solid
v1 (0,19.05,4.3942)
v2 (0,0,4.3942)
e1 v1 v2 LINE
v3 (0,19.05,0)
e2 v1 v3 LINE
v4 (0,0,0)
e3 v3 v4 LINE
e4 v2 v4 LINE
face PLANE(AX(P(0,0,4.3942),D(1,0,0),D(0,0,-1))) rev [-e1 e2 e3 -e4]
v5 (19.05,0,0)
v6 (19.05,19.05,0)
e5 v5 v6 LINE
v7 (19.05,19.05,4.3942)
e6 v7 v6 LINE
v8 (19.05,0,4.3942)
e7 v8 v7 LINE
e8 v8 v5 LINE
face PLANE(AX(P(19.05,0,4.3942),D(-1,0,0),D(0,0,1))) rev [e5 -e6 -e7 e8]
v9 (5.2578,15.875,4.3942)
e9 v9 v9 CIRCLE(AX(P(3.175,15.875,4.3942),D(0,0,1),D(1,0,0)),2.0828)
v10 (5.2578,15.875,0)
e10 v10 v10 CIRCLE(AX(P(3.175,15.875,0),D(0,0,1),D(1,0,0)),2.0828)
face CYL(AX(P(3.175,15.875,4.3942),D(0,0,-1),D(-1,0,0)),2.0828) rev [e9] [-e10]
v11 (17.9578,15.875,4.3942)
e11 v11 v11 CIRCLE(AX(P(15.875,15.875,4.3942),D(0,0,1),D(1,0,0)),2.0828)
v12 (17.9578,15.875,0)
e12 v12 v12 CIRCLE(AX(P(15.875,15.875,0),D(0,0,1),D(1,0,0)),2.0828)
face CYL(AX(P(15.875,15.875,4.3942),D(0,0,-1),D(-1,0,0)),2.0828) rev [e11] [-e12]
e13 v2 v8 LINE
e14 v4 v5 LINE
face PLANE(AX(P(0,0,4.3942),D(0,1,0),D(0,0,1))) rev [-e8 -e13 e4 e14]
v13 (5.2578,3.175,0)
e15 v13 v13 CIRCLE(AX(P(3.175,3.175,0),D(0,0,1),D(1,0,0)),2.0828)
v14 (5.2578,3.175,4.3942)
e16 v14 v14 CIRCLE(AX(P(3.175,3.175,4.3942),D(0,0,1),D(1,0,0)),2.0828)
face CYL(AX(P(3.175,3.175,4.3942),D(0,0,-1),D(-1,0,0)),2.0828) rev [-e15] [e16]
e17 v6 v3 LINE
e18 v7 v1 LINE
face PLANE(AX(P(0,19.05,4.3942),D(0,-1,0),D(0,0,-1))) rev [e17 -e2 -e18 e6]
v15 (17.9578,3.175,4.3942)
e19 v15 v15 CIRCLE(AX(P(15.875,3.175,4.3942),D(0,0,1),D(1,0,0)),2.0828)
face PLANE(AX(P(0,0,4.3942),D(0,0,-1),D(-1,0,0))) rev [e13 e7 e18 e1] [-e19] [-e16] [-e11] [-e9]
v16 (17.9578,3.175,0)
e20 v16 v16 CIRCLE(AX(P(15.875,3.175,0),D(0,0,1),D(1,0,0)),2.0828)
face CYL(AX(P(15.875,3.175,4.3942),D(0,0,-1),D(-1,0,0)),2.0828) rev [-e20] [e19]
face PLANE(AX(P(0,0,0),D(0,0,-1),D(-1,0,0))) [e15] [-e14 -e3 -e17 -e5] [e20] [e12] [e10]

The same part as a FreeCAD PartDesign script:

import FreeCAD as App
import Part
import Sketcher
from FreeCAD import Vector
Q = App.Units.Quantity


def add_polygon(sketch, points):
    """Adds a closed chain of lines whose ends are joined by coincident constraints."""
    first, n = sketch.GeometryCount, len(points)
    for a, b in zip(points, points[1:] + points[:1]):
        sketch.addGeometry(Part.LineSegment(App.Vector(*a, 0), App.Vector(*b, 0)), False)
    for i in range(n):
        sketch.addConstraint(Sketcher.Constraint("Coincident", first + i, 2, first + (i + 1) % n, 1))

doc = App.newDocument("Part")
params = doc.addObject("Spreadsheet::Sheet", "Params")
for row, (alias, value) in enumerate([
    ("sketch1_diameter", "0.164 in"),
    ("sketch1_width", "0.75 in"),
    ("pad1_length", "0.173 in"),
], start=1):
    params.set(f"A{row}", alias)
    params.set(f"B{row}", "=" + value)
    params.setAlias(f"B{row}", alias)

body = doc.addObject("PartDesign::Body", "Body")

# Sketch on XY plane
sketch1 = doc.addObject("Sketcher::SketchObject", "Sketch")
body.addObject(sketch1)
sketch1.AttachmentSupport = (doc.XY_Plane, [""])
sketch1.MapMode = "FlatFace"
add_polygon(sketch1, [(0, 19.1), (0, 0), (19.1, 0), (19.1, 19.1)])  # lines 0-3
sketch1.addGeometry(Part.Circle(Vector(3.2, 3.2, 0), Vector(0, 0, 1), 2.1), False)  # 4
sketch1.addGeometry(Part.Circle(Vector(15.9, 3.2, 0), Vector(0, 0, 1), 2.1), False)  # 5
sketch1.addGeometry(Part.Circle(Vector(3.2, 15.9, 0), Vector(0, 0, 1), 2.1), False)  # 6
sketch1.addGeometry(Part.Circle(Vector(15.9, 15.9, 0), Vector(0, 0, 1), 2.1), False)  # 7
sketch1.addConstraint(Sketcher.Constraint("Vertical", 0))
sketch1.addConstraint(Sketcher.Constraint("Horizontal", 1))
sketch1.addConstraint(Sketcher.Constraint("Vertical", 2))
sketch1.addConstraint(Sketcher.Constraint("Horizontal", 3))
sketch1.addConstraint(Sketcher.Constraint("Coincident", 0, 2, -1, 1))
sketch1.addConstraint(Sketcher.Constraint("Equal", 4, 5))
sketch1.addConstraint(Sketcher.Constraint("Equal", 5, 6))
sketch1.addConstraint(Sketcher.Constraint("Equal", 6, 7))
sketch1.addConstraint(Sketcher.Constraint("Horizontal", 4, 3, 5, 3))
sketch1.addConstraint(Sketcher.Constraint("Horizontal", 6, 3, 7, 3))
sketch1.addConstraint(Sketcher.Constraint("Vertical", 4, 3, 6, 3))
sketch1.addConstraint(Sketcher.Constraint("Vertical", 5, 3, 7, 3))
sketch1.addConstraint(Sketcher.Constraint("Equal", 3, 0))
sketch1.addConstraint(Sketcher.Constraint("Diameter", 4, Q("0.164 in")))
sketch1.addConstraint(Sketcher.Constraint("DistanceX", 1, 1, 1, 2, Q("0.75 in")))
sketch1.addConstraint(Sketcher.Constraint("DistanceX", 4, 3, 5, 3, Q("0.5 in")))
sketch1.addConstraint(Sketcher.Constraint("DistanceY", 4, 3, 6, 3, Q("0.5 in")))
sketch1.addConstraint(Sketcher.Constraint("DistanceX", -1, 1, 4, 3, Q("0.125 in")))
sketch1.addConstraint(Sketcher.Constraint("DistanceY", -1, 1, 4, 3, Q("0.125 in")))
sketch1.setExpression("Constraints[17]", "Params.sketch1_diameter")
sketch1.setExpression("Constraints[18]", "Params.sketch1_width")
pad1 = doc.addObject("PartDesign::Pad", "Pad")
body.addObject(pad1)
pad1.Profile = sketch1
pad1.setExpression("Length", "Params.pad1_length")

doc.recompute()
